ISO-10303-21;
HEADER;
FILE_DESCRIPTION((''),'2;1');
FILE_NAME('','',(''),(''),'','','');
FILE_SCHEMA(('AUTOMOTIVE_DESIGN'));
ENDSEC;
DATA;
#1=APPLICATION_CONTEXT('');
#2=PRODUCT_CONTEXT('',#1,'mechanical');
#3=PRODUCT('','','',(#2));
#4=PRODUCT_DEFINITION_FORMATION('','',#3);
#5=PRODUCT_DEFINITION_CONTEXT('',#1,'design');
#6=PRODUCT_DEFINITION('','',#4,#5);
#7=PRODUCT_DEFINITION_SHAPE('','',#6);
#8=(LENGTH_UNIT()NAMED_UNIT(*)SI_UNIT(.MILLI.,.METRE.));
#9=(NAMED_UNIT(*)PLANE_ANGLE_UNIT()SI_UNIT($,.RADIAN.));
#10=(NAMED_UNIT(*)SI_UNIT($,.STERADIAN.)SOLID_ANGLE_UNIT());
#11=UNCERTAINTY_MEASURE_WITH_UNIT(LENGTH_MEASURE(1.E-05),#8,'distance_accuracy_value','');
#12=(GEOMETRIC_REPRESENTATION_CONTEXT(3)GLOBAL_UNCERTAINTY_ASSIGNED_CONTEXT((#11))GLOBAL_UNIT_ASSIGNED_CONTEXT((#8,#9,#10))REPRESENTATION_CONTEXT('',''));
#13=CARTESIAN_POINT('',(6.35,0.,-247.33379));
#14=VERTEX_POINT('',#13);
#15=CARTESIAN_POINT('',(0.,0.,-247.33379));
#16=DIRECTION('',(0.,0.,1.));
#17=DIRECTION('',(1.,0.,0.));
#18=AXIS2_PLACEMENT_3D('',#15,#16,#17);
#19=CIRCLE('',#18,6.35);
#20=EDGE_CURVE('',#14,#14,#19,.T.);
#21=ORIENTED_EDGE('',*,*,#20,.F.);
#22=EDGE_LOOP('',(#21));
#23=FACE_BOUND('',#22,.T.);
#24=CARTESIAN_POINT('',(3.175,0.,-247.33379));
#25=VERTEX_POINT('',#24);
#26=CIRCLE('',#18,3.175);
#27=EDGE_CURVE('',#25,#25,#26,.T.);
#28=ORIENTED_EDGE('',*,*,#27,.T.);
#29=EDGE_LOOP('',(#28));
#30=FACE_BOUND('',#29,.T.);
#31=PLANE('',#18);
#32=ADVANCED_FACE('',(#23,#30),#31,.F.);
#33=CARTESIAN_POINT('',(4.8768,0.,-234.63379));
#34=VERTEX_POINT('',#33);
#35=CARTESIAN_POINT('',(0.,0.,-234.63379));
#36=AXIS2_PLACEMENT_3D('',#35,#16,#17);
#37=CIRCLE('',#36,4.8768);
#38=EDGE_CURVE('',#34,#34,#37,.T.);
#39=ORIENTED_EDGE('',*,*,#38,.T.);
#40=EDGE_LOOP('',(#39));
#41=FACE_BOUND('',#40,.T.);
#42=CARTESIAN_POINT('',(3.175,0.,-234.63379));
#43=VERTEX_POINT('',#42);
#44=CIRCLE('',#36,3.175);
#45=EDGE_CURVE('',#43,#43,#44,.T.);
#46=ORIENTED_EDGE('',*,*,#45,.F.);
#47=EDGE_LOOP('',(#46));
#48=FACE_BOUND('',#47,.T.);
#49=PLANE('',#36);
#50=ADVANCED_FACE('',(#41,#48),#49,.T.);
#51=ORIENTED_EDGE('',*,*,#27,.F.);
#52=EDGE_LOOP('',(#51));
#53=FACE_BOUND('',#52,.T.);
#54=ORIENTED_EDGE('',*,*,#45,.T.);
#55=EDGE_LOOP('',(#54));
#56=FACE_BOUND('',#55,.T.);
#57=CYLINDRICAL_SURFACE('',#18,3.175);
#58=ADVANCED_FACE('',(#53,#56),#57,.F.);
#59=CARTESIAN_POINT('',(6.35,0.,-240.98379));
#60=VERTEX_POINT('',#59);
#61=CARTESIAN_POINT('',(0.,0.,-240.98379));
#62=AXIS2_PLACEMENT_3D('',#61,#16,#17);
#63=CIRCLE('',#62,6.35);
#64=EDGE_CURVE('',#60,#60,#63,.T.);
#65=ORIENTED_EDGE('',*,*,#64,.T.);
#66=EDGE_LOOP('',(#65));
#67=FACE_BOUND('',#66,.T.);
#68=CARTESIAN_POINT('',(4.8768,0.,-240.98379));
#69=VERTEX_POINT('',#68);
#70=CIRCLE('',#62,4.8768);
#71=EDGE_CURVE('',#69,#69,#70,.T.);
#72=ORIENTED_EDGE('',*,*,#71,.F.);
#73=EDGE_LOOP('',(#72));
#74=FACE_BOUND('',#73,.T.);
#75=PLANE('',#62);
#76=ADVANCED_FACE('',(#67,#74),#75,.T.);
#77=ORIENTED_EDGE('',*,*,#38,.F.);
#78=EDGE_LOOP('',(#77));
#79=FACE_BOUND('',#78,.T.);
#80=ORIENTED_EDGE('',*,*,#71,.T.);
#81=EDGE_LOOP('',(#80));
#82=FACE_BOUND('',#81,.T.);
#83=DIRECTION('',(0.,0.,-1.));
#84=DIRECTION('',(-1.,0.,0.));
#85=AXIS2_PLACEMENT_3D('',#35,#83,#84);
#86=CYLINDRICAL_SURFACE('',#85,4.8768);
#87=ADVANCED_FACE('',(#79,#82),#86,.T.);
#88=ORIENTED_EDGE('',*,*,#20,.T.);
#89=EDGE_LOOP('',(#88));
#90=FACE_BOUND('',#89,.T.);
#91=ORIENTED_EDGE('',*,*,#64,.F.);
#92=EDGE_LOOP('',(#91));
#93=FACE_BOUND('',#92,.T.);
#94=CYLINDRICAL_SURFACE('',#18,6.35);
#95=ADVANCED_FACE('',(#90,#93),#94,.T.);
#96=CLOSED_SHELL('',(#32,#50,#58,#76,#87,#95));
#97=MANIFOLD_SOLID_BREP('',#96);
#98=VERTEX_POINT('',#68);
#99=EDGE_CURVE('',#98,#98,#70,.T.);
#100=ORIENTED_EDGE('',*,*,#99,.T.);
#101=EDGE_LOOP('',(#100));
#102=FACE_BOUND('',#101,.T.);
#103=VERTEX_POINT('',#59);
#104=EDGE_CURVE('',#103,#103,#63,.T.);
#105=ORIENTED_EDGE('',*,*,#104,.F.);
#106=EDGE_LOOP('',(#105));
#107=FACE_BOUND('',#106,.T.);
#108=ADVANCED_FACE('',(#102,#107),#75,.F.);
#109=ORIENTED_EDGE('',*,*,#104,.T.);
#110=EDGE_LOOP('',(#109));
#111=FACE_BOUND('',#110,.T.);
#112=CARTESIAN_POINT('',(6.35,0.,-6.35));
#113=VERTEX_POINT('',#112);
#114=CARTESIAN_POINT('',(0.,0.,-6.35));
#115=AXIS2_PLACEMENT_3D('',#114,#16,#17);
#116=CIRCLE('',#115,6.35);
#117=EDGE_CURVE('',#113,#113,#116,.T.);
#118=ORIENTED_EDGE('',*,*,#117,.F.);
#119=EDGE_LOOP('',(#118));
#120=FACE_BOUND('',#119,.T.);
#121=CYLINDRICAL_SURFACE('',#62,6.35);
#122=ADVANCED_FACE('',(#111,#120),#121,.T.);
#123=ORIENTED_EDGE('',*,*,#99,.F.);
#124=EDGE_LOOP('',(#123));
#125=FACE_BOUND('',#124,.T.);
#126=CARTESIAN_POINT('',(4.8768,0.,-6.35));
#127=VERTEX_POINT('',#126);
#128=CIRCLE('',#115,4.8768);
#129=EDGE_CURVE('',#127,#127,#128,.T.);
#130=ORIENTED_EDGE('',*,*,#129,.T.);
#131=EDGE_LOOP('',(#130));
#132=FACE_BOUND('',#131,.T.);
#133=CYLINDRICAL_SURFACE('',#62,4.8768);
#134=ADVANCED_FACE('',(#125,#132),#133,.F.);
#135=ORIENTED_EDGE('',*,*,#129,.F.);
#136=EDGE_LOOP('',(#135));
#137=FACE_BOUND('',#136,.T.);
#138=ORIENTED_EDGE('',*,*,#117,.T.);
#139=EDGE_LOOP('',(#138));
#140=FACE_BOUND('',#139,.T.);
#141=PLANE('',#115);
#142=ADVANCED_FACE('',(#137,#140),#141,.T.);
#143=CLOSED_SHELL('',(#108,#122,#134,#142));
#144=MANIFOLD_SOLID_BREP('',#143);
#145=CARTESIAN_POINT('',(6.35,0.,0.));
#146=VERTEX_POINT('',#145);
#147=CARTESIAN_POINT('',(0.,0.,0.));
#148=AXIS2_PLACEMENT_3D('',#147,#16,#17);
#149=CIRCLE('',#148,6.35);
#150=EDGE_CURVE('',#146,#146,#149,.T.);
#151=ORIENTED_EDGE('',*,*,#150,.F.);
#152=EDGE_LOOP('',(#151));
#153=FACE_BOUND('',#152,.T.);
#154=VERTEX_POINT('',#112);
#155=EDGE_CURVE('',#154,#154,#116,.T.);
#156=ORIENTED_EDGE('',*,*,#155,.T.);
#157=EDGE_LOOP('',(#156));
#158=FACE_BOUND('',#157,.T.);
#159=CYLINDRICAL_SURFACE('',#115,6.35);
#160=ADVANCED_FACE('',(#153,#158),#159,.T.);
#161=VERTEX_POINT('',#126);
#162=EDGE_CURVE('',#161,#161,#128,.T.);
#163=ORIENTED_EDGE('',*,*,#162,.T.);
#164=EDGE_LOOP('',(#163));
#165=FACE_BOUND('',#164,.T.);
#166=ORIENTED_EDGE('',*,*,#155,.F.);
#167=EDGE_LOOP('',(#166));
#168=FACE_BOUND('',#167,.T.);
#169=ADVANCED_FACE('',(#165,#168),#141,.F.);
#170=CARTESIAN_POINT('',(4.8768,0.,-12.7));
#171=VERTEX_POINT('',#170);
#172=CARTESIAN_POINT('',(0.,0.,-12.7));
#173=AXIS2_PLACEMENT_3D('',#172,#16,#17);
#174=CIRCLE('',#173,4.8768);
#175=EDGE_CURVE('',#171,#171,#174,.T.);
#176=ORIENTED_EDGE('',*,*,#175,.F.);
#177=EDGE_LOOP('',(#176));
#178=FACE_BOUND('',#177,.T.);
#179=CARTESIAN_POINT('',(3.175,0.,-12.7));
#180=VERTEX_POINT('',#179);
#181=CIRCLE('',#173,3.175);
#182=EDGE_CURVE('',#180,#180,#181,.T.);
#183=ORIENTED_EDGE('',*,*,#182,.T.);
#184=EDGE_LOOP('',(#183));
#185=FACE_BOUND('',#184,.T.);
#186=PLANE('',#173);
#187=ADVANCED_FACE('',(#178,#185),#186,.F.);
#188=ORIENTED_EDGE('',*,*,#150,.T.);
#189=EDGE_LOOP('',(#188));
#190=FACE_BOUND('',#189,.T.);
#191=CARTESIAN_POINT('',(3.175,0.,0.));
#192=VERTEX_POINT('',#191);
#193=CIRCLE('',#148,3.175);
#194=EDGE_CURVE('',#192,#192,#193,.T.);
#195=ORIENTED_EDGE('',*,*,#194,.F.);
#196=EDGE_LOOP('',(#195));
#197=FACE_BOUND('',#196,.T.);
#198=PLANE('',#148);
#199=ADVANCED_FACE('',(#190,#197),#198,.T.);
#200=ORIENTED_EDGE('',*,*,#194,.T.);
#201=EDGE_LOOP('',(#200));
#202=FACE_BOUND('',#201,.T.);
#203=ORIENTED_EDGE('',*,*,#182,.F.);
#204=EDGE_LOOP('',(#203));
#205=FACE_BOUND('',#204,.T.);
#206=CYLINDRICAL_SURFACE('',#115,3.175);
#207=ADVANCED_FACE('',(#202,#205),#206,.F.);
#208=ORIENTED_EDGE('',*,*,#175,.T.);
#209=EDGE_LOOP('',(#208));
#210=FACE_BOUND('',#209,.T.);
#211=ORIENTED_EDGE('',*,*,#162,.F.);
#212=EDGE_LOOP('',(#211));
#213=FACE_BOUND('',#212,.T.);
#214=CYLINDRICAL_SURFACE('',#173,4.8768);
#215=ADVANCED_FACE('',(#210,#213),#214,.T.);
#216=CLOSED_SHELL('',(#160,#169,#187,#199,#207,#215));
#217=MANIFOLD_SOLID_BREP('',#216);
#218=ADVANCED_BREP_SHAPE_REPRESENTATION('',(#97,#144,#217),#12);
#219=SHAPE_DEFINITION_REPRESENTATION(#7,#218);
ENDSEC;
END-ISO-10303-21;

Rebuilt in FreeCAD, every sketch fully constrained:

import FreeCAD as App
import Part
import Sketcher
Q = App.Units.Quantity

doc = App.newDocument("Part")
params = doc.addObject("Spreadsheet::Sheet", "Params")
for row, (alias, value) in enumerate([
    ("sketch1_diameter", "0.5 in"),
    ("sketch1_diameter2", "0.25 in"),
    ("pad1_length", "0.25 in"),
    ("sketch2_diameter", "0.25 in"),
    ("sketch2_diameter2", "0.384 in"),
    ("pad2_length", "0.25 in"),
    ("sketch3_diameter", "0.5 in"),
    ("sketch3_diameter2", "0.384 in"),
    ("pad3_length", "234.63379 mm"),
    ("sketch4_diameter", "0.25 in"),
    ("sketch4_diameter2", "0.384 in"),
    ("pad4_length", "0.25 in"),
    ("sketch5_diameter", "0.5 in"),
    ("sketch5_diameter2", "0.25 in"),
    ("pad5_length", "0.25 in"),
], start=1):
    params.set(f"A{row}", alias)
    params.set(f"B{row}", "=" + value)
    params.setAlias(f"B{row}", alias)

body = doc.addObject("PartDesign::Body", "Body")

# Sketch on XY plane
sketch1 = body.newObject("Sketcher::SketchObject", "Sketch")
sketch1.AttachmentSupport = (doc.getObject("XY_Plane"), [""])
sketch1.MapMode = "FlatFace"
sketch1.addGeometry([
    Part.Circle(App.Vector(0, 0, 0), App.Vector(0, 0, 1), 6.3),
    Part.Circle(App.Vector(0, 0, 0), App.Vector(0, 0, 1), 3.2),
], False)
sketch1.addConstraint([
    Sketcher.Constraint("Coincident", 0, 3, -1, 1),
    Sketcher.Constraint("Coincident", 1, 3, -1, 1),
    Sketcher.Constraint("Diameter", 0, Q("0.5 in")),
    Sketcher.Constraint("Diameter", 1, Q("0.25 in")),
])
sketch1.setExpression("Constraints[2]", "Params.sketch1_diameter")
sketch1.setExpression("Constraints[3]", "Params.sketch1_diameter2")
pad1 = body.newObject("PartDesign::Pad", "Pad")
pad1.Profile = sketch1
pad1.setExpression("Length", "Params.pad1_length")
pad1.Reversed = True

# Sketch on XY plane
sketch2 = body.newObject("Sketcher::SketchObject", "Sketch001")
sketch2.AttachmentSupport = (doc.getObject("XY_Plane"), [""])
sketch2.MapMode = "FlatFace"
sketch2.AttachmentOffset = App.Placement(App.Vector(0, 0, -0.25 * 25.4), App.Rotation())
sketch2.addGeometry([
    Part.Circle(App.Vector(0, 0, 0), App.Vector(0, 0, 1), 4.9),
    Part.Circle(App.Vector(0, 0, 0), App.Vector(0, 0, 1), 3.2),
], False)
sketch2.addConstraint([
    Sketcher.Constraint("Coincident", 0, 3, -1, 1),
    Sketcher.Constraint("Coincident", 1, 3, -1, 1),
    Sketcher.Constraint("Diameter", 1, Q("0.25 in")),
    Sketcher.Constraint("Diameter", 0, Q("0.384 in")),
])
sketch2.setExpression("Constraints[2]", "Params.sketch2_diameter")
sketch2.setExpression("Constraints[3]", "Params.sketch2_diameter2")
pad2 = body.newObject("PartDesign::Pad", "Pad001")
pad2.Profile = sketch2
pad2.setExpression("Length", "Params.pad2_length")
pad2.Reversed = True
body2 = doc.addObject("PartDesign::Body", "Body001")

# Sketch on XY plane
sketch3 = body2.newObject("Sketcher::SketchObject", "Sketch002")
sketch3.AttachmentSupport = (doc.getObject("XY_Plane001"), [""])
sketch3.MapMode = "FlatFace"
sketch3.AttachmentOffset = App.Placement(App.Vector(0, 0, -0.25 * 25.4), App.Rotation())
sketch3.addGeometry([
    Part.Circle(App.Vector(0, 0, 0), App.Vector(0, 0, 1), 6.3),
    Part.Circle(App.Vector(0, 0, 0), App.Vector(0, 0, 1), 4.9),
], False)
sketch3.addConstraint([
    Sketcher.Constraint("Coincident", 0, 3, -1, 1),
    Sketcher.Constraint("Coincident", 1, 3, -1, 1),
    Sketcher.Constraint("Diameter", 0, Q("0.5 in")),
    Sketcher.Constraint("Diameter", 1, Q("0.384 in")),
])
sketch3.setExpression("Constraints[2]", "Params.sketch3_diameter")
sketch3.setExpression("Constraints[3]", "Params.sketch3_diameter2")
pad3 = body2.newObject("PartDesign::Pad", "Pad002")
pad3.Profile = sketch3
pad3.setExpression("Length", "Params.pad3_length")
pad3.Reversed = True
body3 = doc.addObject("PartDesign::Body", "Body002")

# Sketch on XY plane
sketch4 = body3.newObject("Sketcher::SketchObject", "Sketch003")
sketch4.AttachmentSupport = (doc.getObject("XY_Plane002"), [""])
sketch4.MapMode = "FlatFace"
sketch4.AttachmentOffset = App.Placement(App.Vector(0, 0, -240.98379), App.Rotation())
sketch4.addGeometry([
    Part.Circle(App.Vector(0, 0, 0), App.Vector(0, 0, 1), 4.9),
    Part.Circle(App.Vector(0, 0, 0), App.Vector(0, 0, 1), 3.2),
], False)
sketch4.addConstraint([
    Sketcher.Constraint("Coincident", 0, 3, -1, 1),
    Sketcher.Constraint("Coincident", 1, 3, -1, 1),
    Sketcher.Constraint("Diameter", 1, Q("0.25 in")),
    Sketcher.Constraint("Diameter", 0, Q("0.384 in")),
])
sketch4.setExpression("Constraints[2]", "Params.sketch4_diameter")
sketch4.setExpression("Constraints[3]", "Params.sketch4_diameter2")
pad4 = body3.newObject("PartDesign::Pad", "Pad003")
pad4.Profile = sketch4
pad4.setExpression("Length", "Params.pad4_length")
body4 = doc.addObject("PartDesign::Body", "Body003")

# Sketch on XY plane
sketch5 = body4.newObject("Sketcher::SketchObject", "Sketch004")
sketch5.AttachmentSupport = (doc.getObject("XY_Plane003"), [""])
sketch5.MapMode = "FlatFace"
sketch5.AttachmentOffset = App.Placement(App.Vector(0, 0, -240.98379), App.Rotation())
sketch5.addGeometry([
    Part.Circle(App.Vector(0, 0, 0), App.Vector(0, 0, 1), 6.3),
    Part.Circle(App.Vector(0, 0, 0), App.Vector(0, 0, 1), 3.2),
], False)
sketch5.addConstraint([
    Sketcher.Constraint("Coincident", 0, 3, -1, 1),
    Sketcher.Constraint("Coincident", 1, 3, -1, 1),
    Sketcher.Constraint("Diameter", 0, Q("0.5 in")),
    Sketcher.Constraint("Diameter", 1, Q("0.25 in")),
])
sketch5.setExpression("Constraints[2]", "Params.sketch5_diameter")
sketch5.setExpression("Constraints[3]", "Params.sketch5_diameter2")
pad5 = body4.newObject("PartDesign::Pad", "Pad004")
pad5.Profile = sketch5
pad5.setExpression("Length", "Params.pad5_length")
pad5.Reversed = True
doc.recompute()

boolean = body4.newObject("PartDesign::Boolean", "Boolean")
boolean.Type = "Fuse"
boolean.addObjects([body3])

doc.recompute()
